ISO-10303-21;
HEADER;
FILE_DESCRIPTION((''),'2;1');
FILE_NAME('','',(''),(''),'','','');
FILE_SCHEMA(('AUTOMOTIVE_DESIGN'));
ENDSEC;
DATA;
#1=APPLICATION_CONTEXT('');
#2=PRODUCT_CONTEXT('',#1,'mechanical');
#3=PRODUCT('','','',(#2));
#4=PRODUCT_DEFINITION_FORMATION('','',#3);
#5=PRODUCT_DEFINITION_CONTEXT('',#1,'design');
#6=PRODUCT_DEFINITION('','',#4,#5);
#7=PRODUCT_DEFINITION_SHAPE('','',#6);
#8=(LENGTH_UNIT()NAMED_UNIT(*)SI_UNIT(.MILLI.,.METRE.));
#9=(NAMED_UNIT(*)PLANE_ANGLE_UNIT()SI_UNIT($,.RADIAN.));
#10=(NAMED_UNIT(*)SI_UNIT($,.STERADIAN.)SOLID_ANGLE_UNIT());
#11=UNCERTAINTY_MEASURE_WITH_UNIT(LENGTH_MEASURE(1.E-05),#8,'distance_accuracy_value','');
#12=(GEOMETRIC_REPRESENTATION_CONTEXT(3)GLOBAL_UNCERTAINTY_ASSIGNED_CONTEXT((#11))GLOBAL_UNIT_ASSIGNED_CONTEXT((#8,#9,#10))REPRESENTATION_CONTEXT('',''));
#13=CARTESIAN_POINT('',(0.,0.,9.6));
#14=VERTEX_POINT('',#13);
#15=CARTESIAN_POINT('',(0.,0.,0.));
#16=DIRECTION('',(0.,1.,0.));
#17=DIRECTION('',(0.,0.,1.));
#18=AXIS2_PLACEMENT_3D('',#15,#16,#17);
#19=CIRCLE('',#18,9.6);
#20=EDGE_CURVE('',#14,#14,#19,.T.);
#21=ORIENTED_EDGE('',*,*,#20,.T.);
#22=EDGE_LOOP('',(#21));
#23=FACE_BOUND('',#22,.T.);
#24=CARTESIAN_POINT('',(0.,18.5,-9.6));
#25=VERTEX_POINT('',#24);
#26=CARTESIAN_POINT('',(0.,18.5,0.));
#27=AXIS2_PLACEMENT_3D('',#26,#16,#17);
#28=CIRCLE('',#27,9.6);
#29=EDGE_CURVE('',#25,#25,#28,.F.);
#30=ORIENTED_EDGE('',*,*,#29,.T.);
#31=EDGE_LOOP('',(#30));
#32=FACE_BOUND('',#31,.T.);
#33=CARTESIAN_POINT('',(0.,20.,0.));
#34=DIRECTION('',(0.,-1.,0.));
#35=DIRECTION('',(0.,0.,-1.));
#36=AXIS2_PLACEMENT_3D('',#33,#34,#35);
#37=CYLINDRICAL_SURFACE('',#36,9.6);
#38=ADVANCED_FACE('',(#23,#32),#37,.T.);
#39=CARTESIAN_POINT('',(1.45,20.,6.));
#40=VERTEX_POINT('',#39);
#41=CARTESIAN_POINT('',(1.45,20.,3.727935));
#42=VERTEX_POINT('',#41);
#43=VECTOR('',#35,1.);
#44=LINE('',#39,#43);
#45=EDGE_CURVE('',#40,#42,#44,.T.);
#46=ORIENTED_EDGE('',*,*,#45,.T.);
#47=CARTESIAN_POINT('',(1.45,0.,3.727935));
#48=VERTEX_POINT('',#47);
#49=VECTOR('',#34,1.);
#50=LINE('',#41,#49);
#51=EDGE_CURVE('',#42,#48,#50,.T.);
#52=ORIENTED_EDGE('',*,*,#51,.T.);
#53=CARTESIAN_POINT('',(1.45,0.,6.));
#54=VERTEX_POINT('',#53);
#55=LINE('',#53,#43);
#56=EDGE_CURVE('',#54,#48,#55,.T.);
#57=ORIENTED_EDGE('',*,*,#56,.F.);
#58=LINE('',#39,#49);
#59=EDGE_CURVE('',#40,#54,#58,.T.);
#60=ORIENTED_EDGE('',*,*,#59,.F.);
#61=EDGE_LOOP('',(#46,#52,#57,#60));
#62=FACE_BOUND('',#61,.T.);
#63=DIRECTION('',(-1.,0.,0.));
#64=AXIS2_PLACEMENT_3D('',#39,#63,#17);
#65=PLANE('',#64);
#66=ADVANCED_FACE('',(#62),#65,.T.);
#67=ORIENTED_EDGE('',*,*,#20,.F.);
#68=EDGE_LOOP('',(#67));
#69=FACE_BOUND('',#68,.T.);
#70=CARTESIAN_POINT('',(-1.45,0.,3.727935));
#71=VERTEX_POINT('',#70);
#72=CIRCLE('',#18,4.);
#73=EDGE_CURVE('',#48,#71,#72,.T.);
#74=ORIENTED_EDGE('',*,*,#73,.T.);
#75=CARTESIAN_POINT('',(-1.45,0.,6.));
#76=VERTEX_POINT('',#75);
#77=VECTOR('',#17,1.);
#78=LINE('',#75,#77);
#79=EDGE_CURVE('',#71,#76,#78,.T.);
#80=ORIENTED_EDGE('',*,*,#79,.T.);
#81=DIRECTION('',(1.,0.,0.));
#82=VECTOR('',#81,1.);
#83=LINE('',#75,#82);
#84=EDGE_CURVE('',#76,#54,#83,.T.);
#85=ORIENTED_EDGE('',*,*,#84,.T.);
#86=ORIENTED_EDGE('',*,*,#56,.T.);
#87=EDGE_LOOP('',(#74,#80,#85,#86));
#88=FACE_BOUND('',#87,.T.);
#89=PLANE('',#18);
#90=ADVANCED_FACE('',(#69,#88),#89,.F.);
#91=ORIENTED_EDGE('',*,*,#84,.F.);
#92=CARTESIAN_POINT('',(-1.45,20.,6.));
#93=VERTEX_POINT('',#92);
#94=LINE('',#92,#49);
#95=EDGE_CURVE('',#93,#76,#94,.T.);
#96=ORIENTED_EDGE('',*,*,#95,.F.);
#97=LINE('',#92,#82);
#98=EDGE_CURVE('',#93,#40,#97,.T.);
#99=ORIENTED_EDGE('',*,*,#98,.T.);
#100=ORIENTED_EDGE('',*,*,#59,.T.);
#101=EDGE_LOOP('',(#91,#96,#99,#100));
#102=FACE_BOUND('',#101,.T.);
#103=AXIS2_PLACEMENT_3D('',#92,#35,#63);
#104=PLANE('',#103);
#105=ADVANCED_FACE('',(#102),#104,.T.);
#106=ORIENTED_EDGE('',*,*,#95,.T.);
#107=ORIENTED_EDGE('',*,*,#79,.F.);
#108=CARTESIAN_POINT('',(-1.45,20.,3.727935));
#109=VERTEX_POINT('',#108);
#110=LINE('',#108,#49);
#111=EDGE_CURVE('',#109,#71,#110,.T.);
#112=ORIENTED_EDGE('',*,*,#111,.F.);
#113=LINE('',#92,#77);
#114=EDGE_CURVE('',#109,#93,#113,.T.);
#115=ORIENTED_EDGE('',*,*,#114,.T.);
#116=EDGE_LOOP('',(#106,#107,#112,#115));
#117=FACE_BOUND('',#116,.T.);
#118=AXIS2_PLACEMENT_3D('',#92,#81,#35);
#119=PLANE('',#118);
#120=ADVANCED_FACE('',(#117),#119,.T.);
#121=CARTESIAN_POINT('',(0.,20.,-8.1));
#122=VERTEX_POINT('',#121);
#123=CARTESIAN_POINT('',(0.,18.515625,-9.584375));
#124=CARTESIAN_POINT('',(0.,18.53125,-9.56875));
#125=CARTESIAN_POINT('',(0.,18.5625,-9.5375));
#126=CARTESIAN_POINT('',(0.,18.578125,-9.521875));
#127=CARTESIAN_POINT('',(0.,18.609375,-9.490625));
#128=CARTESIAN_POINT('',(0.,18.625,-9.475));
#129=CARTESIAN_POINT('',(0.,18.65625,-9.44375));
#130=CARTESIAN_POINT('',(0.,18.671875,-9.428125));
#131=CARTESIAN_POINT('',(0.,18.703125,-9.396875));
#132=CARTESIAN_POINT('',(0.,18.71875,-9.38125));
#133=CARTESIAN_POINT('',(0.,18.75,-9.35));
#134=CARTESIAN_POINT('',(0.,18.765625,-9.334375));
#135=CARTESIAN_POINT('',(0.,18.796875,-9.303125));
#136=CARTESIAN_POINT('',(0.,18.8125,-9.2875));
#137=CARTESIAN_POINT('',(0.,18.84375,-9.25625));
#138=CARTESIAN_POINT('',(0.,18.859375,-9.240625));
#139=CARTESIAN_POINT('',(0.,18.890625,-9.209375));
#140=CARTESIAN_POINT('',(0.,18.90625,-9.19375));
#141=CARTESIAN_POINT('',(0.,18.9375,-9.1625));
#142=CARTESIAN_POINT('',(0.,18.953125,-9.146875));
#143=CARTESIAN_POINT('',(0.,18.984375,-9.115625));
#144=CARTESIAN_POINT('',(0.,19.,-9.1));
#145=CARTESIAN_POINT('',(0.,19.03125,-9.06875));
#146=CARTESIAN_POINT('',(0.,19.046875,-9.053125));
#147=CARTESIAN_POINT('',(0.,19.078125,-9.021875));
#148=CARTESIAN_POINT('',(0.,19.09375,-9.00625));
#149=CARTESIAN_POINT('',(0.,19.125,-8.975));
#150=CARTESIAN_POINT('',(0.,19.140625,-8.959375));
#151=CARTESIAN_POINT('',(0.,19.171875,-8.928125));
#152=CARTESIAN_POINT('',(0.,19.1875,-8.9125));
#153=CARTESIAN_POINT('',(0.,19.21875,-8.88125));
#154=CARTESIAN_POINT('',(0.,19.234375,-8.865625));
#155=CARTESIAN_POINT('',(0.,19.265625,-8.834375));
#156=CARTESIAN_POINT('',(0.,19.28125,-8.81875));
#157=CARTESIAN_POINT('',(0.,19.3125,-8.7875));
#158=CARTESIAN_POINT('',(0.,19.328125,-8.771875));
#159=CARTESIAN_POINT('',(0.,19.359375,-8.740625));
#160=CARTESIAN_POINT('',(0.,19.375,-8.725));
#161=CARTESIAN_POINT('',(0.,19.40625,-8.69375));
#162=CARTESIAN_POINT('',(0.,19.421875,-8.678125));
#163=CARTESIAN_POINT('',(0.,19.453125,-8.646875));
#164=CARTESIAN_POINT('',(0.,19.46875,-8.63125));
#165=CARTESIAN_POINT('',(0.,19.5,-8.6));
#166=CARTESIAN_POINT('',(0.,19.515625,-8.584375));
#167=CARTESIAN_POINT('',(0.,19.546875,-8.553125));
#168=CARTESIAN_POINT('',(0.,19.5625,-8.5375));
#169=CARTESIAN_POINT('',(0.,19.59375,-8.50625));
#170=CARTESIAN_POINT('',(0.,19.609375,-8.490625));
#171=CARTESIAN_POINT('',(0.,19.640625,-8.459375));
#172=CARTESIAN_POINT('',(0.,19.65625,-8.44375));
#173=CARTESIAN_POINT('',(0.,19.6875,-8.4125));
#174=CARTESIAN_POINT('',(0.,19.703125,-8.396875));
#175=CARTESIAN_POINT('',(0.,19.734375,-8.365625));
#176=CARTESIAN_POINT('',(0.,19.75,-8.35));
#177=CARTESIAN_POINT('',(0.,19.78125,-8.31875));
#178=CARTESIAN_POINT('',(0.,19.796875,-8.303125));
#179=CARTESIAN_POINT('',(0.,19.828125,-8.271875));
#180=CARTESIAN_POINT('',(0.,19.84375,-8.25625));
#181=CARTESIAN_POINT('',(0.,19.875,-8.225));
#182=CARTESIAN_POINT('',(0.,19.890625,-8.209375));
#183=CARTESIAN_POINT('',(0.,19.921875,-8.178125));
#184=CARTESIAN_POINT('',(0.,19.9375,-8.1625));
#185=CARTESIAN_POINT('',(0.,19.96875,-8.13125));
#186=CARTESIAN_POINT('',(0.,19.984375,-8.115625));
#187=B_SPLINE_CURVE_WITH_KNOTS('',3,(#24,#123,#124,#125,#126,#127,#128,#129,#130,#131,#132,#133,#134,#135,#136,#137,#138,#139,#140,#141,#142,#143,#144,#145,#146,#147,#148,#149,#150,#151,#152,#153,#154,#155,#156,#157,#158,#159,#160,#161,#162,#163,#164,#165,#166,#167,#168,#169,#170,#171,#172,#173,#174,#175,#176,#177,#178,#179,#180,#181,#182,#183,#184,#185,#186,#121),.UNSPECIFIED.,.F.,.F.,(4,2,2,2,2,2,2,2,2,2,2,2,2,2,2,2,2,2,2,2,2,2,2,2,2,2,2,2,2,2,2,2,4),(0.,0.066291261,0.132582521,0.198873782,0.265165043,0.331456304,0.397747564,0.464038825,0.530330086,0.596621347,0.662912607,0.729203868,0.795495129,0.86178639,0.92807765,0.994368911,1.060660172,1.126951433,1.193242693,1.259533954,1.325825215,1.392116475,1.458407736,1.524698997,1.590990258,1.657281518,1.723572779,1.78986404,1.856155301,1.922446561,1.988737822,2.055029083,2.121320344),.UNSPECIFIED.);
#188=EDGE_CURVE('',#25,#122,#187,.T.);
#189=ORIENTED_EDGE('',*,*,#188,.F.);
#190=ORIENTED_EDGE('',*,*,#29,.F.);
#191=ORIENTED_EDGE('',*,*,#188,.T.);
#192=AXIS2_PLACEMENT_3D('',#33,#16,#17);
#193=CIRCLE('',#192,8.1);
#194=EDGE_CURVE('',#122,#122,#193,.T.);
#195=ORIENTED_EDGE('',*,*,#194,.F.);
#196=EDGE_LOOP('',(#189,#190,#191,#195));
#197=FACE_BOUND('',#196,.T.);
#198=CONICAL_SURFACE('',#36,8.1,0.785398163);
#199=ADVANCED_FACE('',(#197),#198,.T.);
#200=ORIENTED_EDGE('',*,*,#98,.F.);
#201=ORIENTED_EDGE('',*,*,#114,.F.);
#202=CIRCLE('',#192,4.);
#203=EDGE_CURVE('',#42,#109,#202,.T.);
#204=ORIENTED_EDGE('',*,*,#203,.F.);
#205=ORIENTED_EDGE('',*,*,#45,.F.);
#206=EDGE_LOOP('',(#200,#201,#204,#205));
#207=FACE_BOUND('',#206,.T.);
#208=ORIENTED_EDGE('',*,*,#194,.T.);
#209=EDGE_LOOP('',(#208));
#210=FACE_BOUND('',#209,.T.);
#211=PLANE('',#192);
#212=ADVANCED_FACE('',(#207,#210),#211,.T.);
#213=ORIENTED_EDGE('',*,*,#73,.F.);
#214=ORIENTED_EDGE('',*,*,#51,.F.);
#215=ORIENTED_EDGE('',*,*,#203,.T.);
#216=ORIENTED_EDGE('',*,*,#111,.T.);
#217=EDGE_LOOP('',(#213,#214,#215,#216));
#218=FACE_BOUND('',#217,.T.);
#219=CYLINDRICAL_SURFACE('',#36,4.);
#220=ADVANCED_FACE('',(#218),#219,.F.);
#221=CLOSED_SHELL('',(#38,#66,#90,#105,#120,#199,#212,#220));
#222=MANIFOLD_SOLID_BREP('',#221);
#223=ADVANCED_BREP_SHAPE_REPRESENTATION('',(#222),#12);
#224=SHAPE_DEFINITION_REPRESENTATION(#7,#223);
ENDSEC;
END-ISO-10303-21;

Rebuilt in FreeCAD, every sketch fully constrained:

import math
import FreeCAD as App
import Part
import Sketcher


def edges_at(feature, points):
    """Names of the edges that pass closest to the given points."""
    edges = feature.Shape.Edges
    near = lambda p: min(range(len(edges)), key=lambda i: edges[i].distToShape(Part.Vertex(*p))[0])
    return sorted({f"Edge{near(p) + 1}" for p in points})

doc = App.newDocument("Part")
params = doc.addObject("Spreadsheet::Sheet", "Params")
for row, (alias, value) in enumerate([
    ("sketch1_radius", "4 mm"),
    ("sketch1_diameter", "19.2 mm"),
    ("sketch1_width", "2.9 mm"),
    ("pad1_length", "20 mm"),
    ("chamfer_size", "1.5 mm"),
], start=1):
    params.set(f"A{row}", alias)
    params.set(f"B{row}", "=" + value)
    params.setAlias(f"B{row}", alias)

body = doc.addObject("PartDesign::Body", "Body")

# Sketch on XZ plane
sketch1 = body.newObject("Sketcher::SketchObject", "Sketch")
sketch1.AttachmentSupport = (doc.getObject("XZ_Plane"), [""])
sketch1.MapMode = "FlatFace"
sketch1.addGeometry([
    Part.Circle(App.Vector(0, 0, 0), App.Vector(0, 0, 1), 9.6),  # 0
    Part.LineSegment(App.Vector(1.45, 6, 0), App.Vector(-1.45, 6, 0)),  # 1
    Part.LineSegment(App.Vector(-1.45, 6, 0), App.Vector(-1.45, 3.727935, 0)),  # 2
    Part.ArcOfCircle(Part.Circle(App.Vector(0, 0, 0), App.Vector(0, 0, 1), 4), math.radians(111.253809), math.radians(428.746191)),  # 3
    Part.LineSegment(App.Vector(1.45, 3.727935, 0), App.Vector(1.45, 6, 0)),  # 4
], False)
sketch1.addConstraint([
    Sketcher.Constraint("Coincident", 1, 2, 2, 1),
    Sketcher.Constraint("Coincident", 2, 2, 3, 1),
    Sketcher.Constraint("Coincident", 3, 2, 4, 1),
    Sketcher.Constraint("Coincident", 4, 2, 1, 1),
    Sketcher.Constraint("Horizontal", 1),
    Sketcher.Constraint("Vertical", 2),
    Sketcher.Constraint("Vertical", 4),
    Sketcher.Constraint("Coincident", 0, 3, -1, 1),
    Sketcher.Constraint("Coincident", 3, 3, -1, 1),
    Sketcher.Constraint("Horizontal", 2, 2, 3, 2),
    Sketcher.Constraint("Radius", 3, 4.0),
    Sketcher.Constraint("Diameter", 0, 19.2),
    Sketcher.Constraint("DistanceX", 1, 2, 1, 1, 2.9),
    Sketcher.Constraint("DistanceY", -1, 1, 1, 2, 6.0),
])
sketch1.setExpression("Constraints[10]", "Params.sketch1_radius")
sketch1.setExpression("Constraints[11]", "Params.sketch1_diameter")
sketch1.setExpression("Constraints[12]", "Params.sketch1_width")
pad1 = body.newObject("PartDesign::Pad", "Pad")
pad1.Profile = sketch1
pad1.setExpression("Length", "Params.pad1_length")
pad1.Reversed = True
doc.recompute()

chamfer = body.newObject("PartDesign::Chamfer", "Chamfer")
chamfer.Base = (pad1, edges_at(pad1, [(0, 20, -9.6)]))
chamfer.setExpression("Size", "Params.chamfer_size")

doc.recompute()
